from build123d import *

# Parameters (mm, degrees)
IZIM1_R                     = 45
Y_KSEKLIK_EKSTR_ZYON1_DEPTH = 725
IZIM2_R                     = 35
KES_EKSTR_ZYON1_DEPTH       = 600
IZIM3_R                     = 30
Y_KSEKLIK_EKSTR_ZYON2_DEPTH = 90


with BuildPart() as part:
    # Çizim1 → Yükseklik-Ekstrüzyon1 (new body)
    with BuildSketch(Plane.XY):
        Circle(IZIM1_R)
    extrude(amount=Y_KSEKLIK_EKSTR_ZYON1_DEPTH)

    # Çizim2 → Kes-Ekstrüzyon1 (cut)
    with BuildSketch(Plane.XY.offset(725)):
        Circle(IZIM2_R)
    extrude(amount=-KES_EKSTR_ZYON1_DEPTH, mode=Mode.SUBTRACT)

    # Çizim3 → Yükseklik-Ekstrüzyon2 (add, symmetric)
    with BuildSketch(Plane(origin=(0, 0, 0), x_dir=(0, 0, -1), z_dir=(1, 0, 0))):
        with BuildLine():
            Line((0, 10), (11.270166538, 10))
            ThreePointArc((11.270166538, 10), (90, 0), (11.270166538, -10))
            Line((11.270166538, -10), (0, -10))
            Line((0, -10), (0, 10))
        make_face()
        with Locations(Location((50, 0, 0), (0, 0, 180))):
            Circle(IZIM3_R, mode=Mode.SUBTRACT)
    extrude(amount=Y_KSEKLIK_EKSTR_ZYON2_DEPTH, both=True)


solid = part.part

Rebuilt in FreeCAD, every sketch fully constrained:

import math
import FreeCAD as App
import Part
import Sketcher
Q = App.Units.Quantity

doc = App.newDocument("Part")
params = doc.addObject("Spreadsheet::Sheet", "Params")
for row, (alias, value) in enumerate([
    ("sketch1_diameter", "90 mm"),
    ("pad1_length", "725 mm"),
    ("sketch2_diameter", "70 mm"),
    ("pocket1_length", "600 mm"),
    ("sketch3_diameter", "60 mm"),
    ("sketch3_radius", "40 mm"),
    ("sketch3_width", "20 mm"),
    ("pad2_length", "180 mm"),
], start=1):
    params.set(f"A{row}", alias)
    params.set(f"B{row}", "=" + value)
    params.setAlias(f"B{row}", alias)

body = doc.addObject("PartDesign::Body", "Body")

# Sketch on XY plane
sketch1 = doc.addObject("Sketcher::SketchObject", "Sketch")
body.addObject(sketch1)
sketch1.AttachmentSupport = (doc.XY_Plane, [""])
sketch1.MapMode = "FlatFace"
sketch1.addGeometry(Part.Circle(App.Vector(0, 0, 0), App.Vector(0, 0, 1), 45), False)
sketch1.addConstraint(Sketcher.Constraint("Coincident", 0, 3, -1, 1))
sketch1.addConstraint(Sketcher.Constraint("Diameter", 0, Q("90 mm")))
sketch1.setExpression("Constraints[1]", "Params.sketch1_diameter")
pad1 = doc.addObject("PartDesign::Pad", "Pad")
body.addObject(pad1)
pad1.Profile = sketch1
pad1.setExpression("Length", "Params.pad1_length")

# Sketch on XY plane
sketch2 = doc.addObject("Sketcher::SketchObject", "Sketch001")
body.addObject(sketch2)
sketch2.AttachmentSupport = (doc.XY_Plane, [""])
sketch2.MapMode = "FlatFace"
sketch2.AttachmentOffset = App.Placement(App.Vector(0, 0, 725), App.Rotation())
sketch2.addGeometry(Part.Circle(App.Vector(0, 0, 0), App.Vector(0, 0, 1), 35), False)
sketch2.addConstraint(Sketcher.Constraint("Coincident", 0, 3, -1, 1))
sketch2.addConstraint(Sketcher.Constraint("Diameter", 0, Q("70 mm")))
sketch2.setExpression("Constraints[1]", "Params.sketch2_diameter")
pocket1 = doc.addObject("PartDesign::Pocket", "Pocket")
body.addObject(pocket1)
pocket1.Profile = sketch2
pocket1.setExpression("Length", "Params.pocket1_length")

# Sketch on YZ plane
sketch3 = doc.addObject("Sketcher::SketchObject", "Sketch002")
body.addObject(sketch3)
sketch3.AttachmentSupport = (doc.YZ_Plane, [""])
sketch3.MapMode = "FlatFace"
sketch3.addGeometry(Part.LineSegment(App.Vector(10, -11, 0), App.Vector(10, 0, 0)), False)
sketch3.addGeometry(Part.LineSegment(App.Vector(10, 0, 0), App.Vector(-10, 0, 0)), False)
sketch3.addGeometry(Part.LineSegment(App.Vector(-10, 0, 0), App.Vector(-10, -11, 0)), False)
sketch3.addGeometry(Part.ArcOfCircle(Part.Circle(App.Vector(0, -50, 0), App.Vector(0, 0, 1), 40), math.radians(104), math.radians(436)), False)
sketch3.addGeometry(Part.Circle(App.Vector(0, -50, 0), App.Vector(0, 0, 1), 30), False)
sketch3.addConstraint(Sketcher.Constraint("Coincident", 0, 2, 1, 1))
sketch3.addConstraint(Sketcher.Constraint("Coincident", 1, 2, 2, 1))
sketch3.addConstraint(Sketcher.Constraint("Coincident", 2, 2, 3, 1))
sketch3.addConstraint(Sketcher.Constraint("Coincident", 3, 2, 0, 1))
sketch3.addConstraint(Sketcher.Constraint("Vertical", 0))
sketch3.addConstraint(Sketcher.Constraint("Horizontal", 1))
sketch3.addConstraint(Sketcher.Constraint("Vertical", 2))
sketch3.addConstraint(Sketcher.Constraint("Coincident", 4, 3, 3, 3))
sketch3.addConstraint(Sketcher.Constraint("Symmetric", 0, 2, 1, 2, -1, 1))
sketch3.addConstraint(Sketcher.Constraint("PointOnObject", 3, 3, -2))
sketch3.addConstraint(Sketcher.Constraint("Diameter", 4, Q("60 mm")))
sketch3.addConstraint(Sketcher.Constraint("Radius", 3, Q("40 mm")))
sketch3.addConstraint(Sketcher.Constraint("DistanceX", 1, 2, 1, 1, Q("20 mm")))
sketch3.addConstraint(Sketcher.Constraint("DistanceY", 3, 3, -1, 1, Q("50 mm")))
sketch3.setExpression("Constraints[10]", "Params.sketch3_diameter")
sketch3.setExpression("Constraints[11]", "Params.sketch3_radius")
sketch3.setExpression("Constraints[12]", "Params.sketch3_width")
pad2 = doc.addObject("PartDesign::Pad", "Pad001")
body.addObject(pad2)
pad2.Profile = sketch3
pad2.setExpression("Length", "Params.pad2_length")
pad2.Midplane = True

doc.recompute()
